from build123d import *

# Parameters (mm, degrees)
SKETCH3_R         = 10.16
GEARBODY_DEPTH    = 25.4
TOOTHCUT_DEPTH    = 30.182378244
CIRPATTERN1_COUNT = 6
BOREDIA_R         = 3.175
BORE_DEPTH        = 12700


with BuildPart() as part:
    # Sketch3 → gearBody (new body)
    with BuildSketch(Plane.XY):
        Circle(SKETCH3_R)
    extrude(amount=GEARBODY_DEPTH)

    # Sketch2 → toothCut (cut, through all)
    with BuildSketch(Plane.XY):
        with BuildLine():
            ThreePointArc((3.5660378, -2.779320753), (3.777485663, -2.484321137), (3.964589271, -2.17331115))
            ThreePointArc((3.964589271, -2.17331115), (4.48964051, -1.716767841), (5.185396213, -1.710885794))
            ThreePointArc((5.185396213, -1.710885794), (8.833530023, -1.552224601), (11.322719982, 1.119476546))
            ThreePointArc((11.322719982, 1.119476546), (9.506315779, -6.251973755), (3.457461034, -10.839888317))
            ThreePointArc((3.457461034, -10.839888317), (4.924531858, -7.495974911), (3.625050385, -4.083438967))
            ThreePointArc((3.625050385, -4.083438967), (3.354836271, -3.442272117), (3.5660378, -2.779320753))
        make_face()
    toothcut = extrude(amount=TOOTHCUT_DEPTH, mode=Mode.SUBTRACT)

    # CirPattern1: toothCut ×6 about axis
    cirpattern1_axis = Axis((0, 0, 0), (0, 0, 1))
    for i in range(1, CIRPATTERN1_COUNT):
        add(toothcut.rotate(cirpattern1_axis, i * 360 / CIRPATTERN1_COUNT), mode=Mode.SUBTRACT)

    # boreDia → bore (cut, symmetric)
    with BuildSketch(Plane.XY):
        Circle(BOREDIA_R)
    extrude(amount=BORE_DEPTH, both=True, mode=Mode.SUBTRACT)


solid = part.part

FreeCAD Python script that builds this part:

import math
import FreeCAD as App
import Part
import Sketcher
Q = App.Units.Quantity

doc = App.newDocument("Part")
body = doc.addObject("PartDesign::Body", "Body")

# Sketch on XY plane
sketch1 = body.newObject("Sketcher::SketchObject", "Sketch")
sketch1.AttachmentSupport = (doc.getObject("XY_Plane"), [""])
sketch1.MapMode = "FlatFace"
sketch1.addGeometry(Part.Circle(App.Vector(0, 0, 0), App.Vector(0, 0, 1), 10), False)
sketch1.addConstraint(Sketcher.Constraint("Coincident", 0, 3, -1, 1))
sketch1.addConstraint(Sketcher.Constraint("Diameter", 0, Q("0.8 in")))
pad1 = body.newObject("PartDesign::Pad", "Pad")
pad1.Profile = sketch1
pad1.Length = Q("1 in")

# Sketch on XY plane
sketch2 = body.newObject("Sketcher::SketchObject", "Sketch001")
sketch2.AttachmentSupport = (doc.getObject("XY_Plane"), [""])
sketch2.MapMode = "FlatFace"
sketch2.addGeometry(Part.ArcOfCircle(Part.Circle(App.Vector(0, 0, 0), App.Vector(0, 0, 1), 4.5), math.radians(-37.93), math.radians(-28.73)), False)
sketch2.addGeometry(Part.ArcOfCircle(Part.Circle(App.Vector(4.4, -3.4, 0), App.Vector(0, 0, 1), 1), math.radians(142), math.radians(223)), False)
sketch2.addGeometry(Part.ArcOfCircle(Part.Circle(App.Vector(0.1, -7.4, 0), App.Vector(0, 0, 1), 4.8), math.radians(-46), math.radians(43)), False)
sketch2.addGeometry(Part.ArcOfCircle(Part.Circle(App.Vector(0, 0, 0), App.Vector(0, 0, 1), 11.4), math.radians(-72), math.radians(6)), False)
sketch2.addGeometry(Part.ArcOfCircle(Part.Circle(App.Vector(6.8, 2.8, 0), App.Vector(0, 0, 1), 4.8), math.radians(-110), math.radians(-21)), False)
sketch2.addGeometry(Part.ArcOfCircle(Part.Circle(App.Vector(4.8, -2.7, 0), App.Vector(0, 0, 1), 1), math.radians(70), math.radians(151)), False)
sketch2.addConstraint(Sketcher.Constraint("Tangent", 0, 1, 1, 1))
sketch2.addConstraint(Sketcher.Constraint("Tangent", 1, 2, 2, 2))
sketch2.addConstraint(Sketcher.Constraint("Coincident", 2, 1, 3, 1))
sketch2.addConstraint(Sketcher.Constraint("Coincident", 3, 2, 4, 2))
sketch2.addConstraint(Sketcher.Constraint("Tangent", 4, 1, 5, 1))
sketch2.addConstraint(Sketcher.Constraint("Tangent", 5, 2, 0, 2))
sketch2.addConstraint(Sketcher.Constraint("Coincident", 0, 3, -1, 1))
sketch2.addConstraint(Sketcher.Constraint("Coincident", 3, 3, -1, 1))
sketch2.addConstraint(Sketcher.Constraint("Equal", 2, 4))
sketch2.addConstraint(Sketcher.Constraint("Equal", 1, 5))
sketch2.addConstraint(Sketcher.Constraint("Radius", 0, Q("0.178 in")))
sketch2.addConstraint(Sketcher.Constraint("Radius", 1, Q("1.00457 mm")))
sketch2.addConstraint(Sketcher.Constraint("Radius", 2, Q("4.818255 mm")))
sketch2.addConstraint(Sketcher.Constraint("Radius", 3, Q("11.377927 mm")))
sketch2.addConstraint(Sketcher.Constraint("DistanceY", 5, 3, -1, 1, Q("2.656201 mm")))
sketch2.addConstraint(Sketcher.Constraint("DistanceX", -1, 1, 1, 3, Q("4.358379 mm")))
sketch2.addConstraint(Sketcher.Constraint("DistanceX", -1, 1, 2, 3, Q("0.107759 mm")))
sketch2.addConstraint(Sketcher.Constraint("DistanceX", -1, 1, 3, 2, Q("11.32272 mm")))
pocket1 = body.newObject("PartDesign::Pocket", "Pocket")
pocket1.Profile = sketch2
pocket1.Type = "ThroughAll"
pocket1.Reversed = True
doc.recompute()

polarpattern = body.newObject("PartDesign::PolarPattern", "PolarPattern")
polarpattern.Originals = [pocket1]
polarpattern.Axis = (doc.getObject("Z_Axis"), [""])
polarpattern.Angle = 360
polarpattern.Occurrences = 6
body.Tip = polarpattern

# Sketch on XY plane
sketch3 = body.newObject("Sketcher::SketchObject", "Sketch002")
sketch3.AttachmentSupport = (doc.getObject("XY_Plane"), [""])
sketch3.MapMode = "FlatFace"
sketch3.addGeometry(Part.Circle(App.Vector(0, 0, 0), App.Vector(0, 0, 1), 3.2), False)
sketch3.addConstraint(Sketcher.Constraint("Coincident", 0, 3, -1, 1))
sketch3.addConstraint(Sketcher.Constraint("Diameter", 0, Q("0.25 in")))
pocket2 = body.newObject("PartDesign::Pocket", "Pocket001")
pocket2.Profile = sketch3
pocket2.Length = Q("1000 in")
pocket2.Midplane = True

doc.recompute()
